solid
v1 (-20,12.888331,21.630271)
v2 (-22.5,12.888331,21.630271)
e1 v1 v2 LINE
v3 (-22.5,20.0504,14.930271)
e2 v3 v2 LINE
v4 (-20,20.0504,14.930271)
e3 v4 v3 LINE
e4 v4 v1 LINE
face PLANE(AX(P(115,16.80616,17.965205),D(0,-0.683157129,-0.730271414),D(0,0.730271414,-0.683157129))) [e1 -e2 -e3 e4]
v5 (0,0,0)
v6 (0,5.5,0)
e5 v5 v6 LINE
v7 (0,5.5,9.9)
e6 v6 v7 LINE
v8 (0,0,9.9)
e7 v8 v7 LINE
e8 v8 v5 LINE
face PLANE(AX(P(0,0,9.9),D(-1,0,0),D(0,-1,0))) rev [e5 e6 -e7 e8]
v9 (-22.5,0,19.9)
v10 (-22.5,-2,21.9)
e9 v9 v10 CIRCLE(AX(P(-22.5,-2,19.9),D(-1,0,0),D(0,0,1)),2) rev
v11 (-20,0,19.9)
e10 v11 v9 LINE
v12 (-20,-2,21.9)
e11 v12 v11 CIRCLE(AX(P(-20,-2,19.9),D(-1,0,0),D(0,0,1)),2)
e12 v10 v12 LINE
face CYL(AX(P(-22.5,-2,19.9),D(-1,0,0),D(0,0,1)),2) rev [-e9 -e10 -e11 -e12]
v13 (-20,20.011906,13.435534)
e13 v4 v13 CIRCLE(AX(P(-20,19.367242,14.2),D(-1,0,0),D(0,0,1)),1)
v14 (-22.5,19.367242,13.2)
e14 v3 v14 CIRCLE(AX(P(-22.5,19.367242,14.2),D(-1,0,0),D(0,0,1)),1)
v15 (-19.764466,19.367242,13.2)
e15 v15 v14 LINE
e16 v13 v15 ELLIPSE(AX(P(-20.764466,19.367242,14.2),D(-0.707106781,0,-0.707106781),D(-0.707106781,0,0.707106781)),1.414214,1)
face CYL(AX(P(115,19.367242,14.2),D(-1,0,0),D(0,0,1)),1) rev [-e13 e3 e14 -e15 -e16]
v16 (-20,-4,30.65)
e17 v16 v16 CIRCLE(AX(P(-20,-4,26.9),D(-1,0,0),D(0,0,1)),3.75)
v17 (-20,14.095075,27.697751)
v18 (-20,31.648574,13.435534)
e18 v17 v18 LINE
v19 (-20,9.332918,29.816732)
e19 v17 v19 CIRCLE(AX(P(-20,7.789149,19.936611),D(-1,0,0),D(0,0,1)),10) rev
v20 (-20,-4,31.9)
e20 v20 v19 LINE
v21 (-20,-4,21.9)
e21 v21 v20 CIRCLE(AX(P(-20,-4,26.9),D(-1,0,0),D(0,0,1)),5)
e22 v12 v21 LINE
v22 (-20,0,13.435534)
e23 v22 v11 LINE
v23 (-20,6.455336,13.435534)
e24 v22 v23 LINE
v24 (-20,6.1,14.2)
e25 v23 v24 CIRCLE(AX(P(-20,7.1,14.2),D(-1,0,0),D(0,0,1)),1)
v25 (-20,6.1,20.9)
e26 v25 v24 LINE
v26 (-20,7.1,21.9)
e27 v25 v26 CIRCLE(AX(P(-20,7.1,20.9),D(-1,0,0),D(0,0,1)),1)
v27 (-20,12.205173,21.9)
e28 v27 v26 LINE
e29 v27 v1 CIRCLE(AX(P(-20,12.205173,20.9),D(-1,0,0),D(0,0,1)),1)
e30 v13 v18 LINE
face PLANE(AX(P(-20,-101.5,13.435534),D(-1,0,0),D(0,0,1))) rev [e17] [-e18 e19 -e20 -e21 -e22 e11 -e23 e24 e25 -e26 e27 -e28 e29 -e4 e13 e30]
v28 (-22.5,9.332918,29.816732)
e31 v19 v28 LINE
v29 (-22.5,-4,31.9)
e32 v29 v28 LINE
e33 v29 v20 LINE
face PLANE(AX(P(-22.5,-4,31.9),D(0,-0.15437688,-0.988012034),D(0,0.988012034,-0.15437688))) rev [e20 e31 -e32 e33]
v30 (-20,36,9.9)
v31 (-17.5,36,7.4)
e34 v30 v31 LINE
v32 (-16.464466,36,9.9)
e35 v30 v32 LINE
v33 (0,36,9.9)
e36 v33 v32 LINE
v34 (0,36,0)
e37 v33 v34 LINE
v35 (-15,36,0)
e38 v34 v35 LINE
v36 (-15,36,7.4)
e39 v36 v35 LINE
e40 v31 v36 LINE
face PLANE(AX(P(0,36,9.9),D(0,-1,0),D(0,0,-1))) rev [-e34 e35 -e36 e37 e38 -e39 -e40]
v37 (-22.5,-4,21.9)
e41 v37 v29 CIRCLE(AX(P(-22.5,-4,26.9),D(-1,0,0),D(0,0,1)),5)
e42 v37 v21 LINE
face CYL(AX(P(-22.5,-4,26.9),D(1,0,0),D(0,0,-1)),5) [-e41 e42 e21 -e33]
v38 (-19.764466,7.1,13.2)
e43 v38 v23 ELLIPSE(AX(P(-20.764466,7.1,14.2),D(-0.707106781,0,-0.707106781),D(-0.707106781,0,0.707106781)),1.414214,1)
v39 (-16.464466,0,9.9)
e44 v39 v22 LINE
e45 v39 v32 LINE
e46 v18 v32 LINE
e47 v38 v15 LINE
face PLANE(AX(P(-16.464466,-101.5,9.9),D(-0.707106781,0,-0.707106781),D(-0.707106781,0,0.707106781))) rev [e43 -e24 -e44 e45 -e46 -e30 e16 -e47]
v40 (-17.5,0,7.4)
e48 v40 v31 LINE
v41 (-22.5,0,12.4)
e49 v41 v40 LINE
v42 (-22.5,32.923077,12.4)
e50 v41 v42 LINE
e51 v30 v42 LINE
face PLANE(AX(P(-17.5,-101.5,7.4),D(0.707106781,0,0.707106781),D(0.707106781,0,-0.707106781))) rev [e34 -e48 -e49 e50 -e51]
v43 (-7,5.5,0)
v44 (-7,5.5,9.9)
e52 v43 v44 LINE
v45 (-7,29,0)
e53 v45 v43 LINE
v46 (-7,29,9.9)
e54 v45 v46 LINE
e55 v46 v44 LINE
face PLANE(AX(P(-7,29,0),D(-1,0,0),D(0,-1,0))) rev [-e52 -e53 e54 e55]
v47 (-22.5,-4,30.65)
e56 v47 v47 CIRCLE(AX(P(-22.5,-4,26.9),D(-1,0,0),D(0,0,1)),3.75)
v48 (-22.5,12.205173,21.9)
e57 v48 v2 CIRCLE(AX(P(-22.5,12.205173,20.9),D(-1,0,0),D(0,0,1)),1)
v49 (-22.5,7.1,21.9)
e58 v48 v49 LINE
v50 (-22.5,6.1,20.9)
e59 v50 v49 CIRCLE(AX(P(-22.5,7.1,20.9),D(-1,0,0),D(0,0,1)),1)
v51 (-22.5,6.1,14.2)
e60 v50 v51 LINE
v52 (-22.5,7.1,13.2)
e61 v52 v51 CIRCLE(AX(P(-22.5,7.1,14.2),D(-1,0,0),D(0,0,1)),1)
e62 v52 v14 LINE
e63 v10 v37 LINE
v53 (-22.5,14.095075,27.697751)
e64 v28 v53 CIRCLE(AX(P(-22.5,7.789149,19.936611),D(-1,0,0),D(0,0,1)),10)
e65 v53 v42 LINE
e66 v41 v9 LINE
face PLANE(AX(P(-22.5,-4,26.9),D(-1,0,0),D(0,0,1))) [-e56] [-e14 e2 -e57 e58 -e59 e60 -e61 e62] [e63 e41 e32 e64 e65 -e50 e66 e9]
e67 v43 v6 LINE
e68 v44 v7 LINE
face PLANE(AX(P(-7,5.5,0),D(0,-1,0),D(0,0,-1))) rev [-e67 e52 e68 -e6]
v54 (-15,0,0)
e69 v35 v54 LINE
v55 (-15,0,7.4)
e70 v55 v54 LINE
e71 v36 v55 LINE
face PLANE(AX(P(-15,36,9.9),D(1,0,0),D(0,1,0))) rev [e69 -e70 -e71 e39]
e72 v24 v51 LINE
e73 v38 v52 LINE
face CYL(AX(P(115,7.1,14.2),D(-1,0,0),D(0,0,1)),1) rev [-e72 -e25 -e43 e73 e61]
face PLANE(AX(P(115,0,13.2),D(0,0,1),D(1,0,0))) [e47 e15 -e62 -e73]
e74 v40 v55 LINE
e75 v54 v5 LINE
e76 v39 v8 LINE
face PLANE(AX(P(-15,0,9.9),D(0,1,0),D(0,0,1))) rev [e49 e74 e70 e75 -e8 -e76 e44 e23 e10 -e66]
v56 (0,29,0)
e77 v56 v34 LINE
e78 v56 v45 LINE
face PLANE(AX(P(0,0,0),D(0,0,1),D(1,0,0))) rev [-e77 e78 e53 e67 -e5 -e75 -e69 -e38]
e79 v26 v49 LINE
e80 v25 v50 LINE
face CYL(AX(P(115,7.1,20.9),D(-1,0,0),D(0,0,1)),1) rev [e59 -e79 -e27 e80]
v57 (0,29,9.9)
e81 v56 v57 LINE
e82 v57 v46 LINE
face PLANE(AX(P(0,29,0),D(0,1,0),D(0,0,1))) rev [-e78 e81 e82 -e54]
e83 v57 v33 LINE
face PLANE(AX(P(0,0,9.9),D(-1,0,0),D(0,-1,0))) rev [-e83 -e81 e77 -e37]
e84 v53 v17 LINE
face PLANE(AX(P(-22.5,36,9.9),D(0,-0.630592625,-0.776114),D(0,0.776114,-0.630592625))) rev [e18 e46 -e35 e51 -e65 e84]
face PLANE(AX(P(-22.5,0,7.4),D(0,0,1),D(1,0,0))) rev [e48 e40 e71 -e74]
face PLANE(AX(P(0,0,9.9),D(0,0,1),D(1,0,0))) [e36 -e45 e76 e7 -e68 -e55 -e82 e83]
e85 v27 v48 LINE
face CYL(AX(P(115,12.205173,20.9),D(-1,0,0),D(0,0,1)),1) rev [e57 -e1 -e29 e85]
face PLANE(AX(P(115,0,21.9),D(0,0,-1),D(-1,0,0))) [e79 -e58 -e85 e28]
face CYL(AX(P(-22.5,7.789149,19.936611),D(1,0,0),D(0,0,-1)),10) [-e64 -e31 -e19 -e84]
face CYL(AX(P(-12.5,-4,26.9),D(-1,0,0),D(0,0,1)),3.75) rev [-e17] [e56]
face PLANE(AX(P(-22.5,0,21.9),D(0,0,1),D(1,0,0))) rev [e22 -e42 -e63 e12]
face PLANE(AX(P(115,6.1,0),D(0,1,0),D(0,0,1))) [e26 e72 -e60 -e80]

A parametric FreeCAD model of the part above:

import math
import FreeCAD as App
import Part
import Sketcher
Q = App.Units.Quantity


def edges_at(feature, points):
    """Names of the edges that pass closest to the given points."""
    edges = feature.Shape.Edges
    near = lambda p: min(range(len(edges)), key=lambda i: edges[i].distToShape(Part.Vertex(*p))[0])
    return sorted({f"Edge{near(p) + 1}" for p in points})


def add_polygon(sketch, points):
    """Adds a closed chain of lines whose ends are joined by coincident constraints."""
    first, n = sketch.GeometryCount, len(points)
    for a, b in zip(points, points[1:] + points[:1]):
        sketch.addGeometry(Part.LineSegment(App.Vector(*a, 0), App.Vector(*b, 0)), False)
    for i in range(n):
        sketch.addConstraint(Sketcher.Constraint("Coincident", first + i, 2, first + (i + 1) % n, 1))

doc = App.newDocument("Part")
body = doc.addObject("PartDesign::Body", "Body")

# Sketch on XY plane
sketch1 = body.newObject("Sketcher::SketchObject", "Sketch")
sketch1.AttachmentSupport = (doc.getObject("XY_Plane"), [""])
sketch1.MapMode = "FlatFace"
add_polygon(sketch1, [(-15, 36), (-15, 0), (0, 0), (0, 36)])  # lines 0-3
sketch1.addConstraint([
    Sketcher.Constraint("Vertical", 0),
    Sketcher.Constraint("Horizontal", 1),
    Sketcher.Constraint("Vertical", 2),
    Sketcher.Constraint("Horizontal", 3),
    Sketcher.Constraint("Coincident", 1, 2, -1, 1),
    Sketcher.Constraint("DistanceX", 1, 1, 1, 2, Q("15 mm")),
    Sketcher.Constraint("DistanceY", 0, 2, 0, 1, Q("36 mm")),
])
pad1 = body.newObject("PartDesign::Pad", "Pad")
pad1.Profile = sketch1
pad1.Length = 9.9

# Sketch on XY plane
sketch2 = body.newObject("Sketcher::SketchObject", "Sketch001")
sketch2.AttachmentSupport = (doc.getObject("XY_Plane"), [""])
sketch2.MapMode = "FlatFace"
sketch2.AttachmentOffset = App.Placement(App.Vector(0, 0, 9.9), App.Rotation())
add_polygon(sketch2, [(-7, 29), (-7, 6), (0, 6), (0, 29)])  # lines 0-3
sketch2.addConstraint([
    Sketcher.Constraint("Vertical", 0),
    Sketcher.Constraint("Horizontal", 1),
    Sketcher.Constraint("Vertical", 2),
    Sketcher.Constraint("Horizontal", 3),
    Sketcher.Constraint("PointOnObject", 1, 2, -2),
    Sketcher.Constraint("DistanceX", 1, 1, 1, 2, Q("7 mm")),
    Sketcher.Constraint("DistanceY", 0, 2, 0, 1, Q("23.5 mm")),
    Sketcher.Constraint("DistanceY", -1, 1, 2, 2, Q("29 mm")),
])
pocket1 = body.newObject("PartDesign::Pocket", "Pocket")
pocket1.Profile = sketch2
pocket1.Length = 9.9

# Sketch on YZ plane
sketch3 = body.newObject("Sketcher::SketchObject", "Sketch002")
sketch3.AttachmentSupport = (doc.getObject("YZ_Plane"), [""])
sketch3.MapMode = "FlatFace"
sketch3.AttachmentOffset = App.Placement(App.Vector(0, 0, -15), App.Rotation())
sketch3.addGeometry([
    Part.LineSegment(App.Vector(36, 9.9, 0), App.Vector(36, 7.4, 0)),  # 0
    Part.LineSegment(App.Vector(36, 7.4, 0), App.Vector(0, 7.4, 0)),  # 1
    Part.LineSegment(App.Vector(0, 7.4, 0), App.Vector(0, 21.9, 0)),  # 2
    Part.LineSegment(App.Vector(0, 21.9, 0), App.Vector(-4, 21.9, 0)),  # 3
    Part.ArcOfCircle(Part.Circle(App.Vector(-4, 26.9, 0), App.Vector(0, 0, 1), 5), math.radians(90), math.radians(270)),  # 4
    Part.LineSegment(App.Vector(-4, 31.9, 0), App.Vector(12, 29.4, 0)),  # 5
    Part.LineSegment(App.Vector(12, 29.4, 0), App.Vector(32.9, 12.4, 0)),  # 6
    Part.LineSegment(App.Vector(32.9, 12.4, 0), App.Vector(36, 9.9, 0)),  # 7
    Part.Circle(App.Vector(-4, 26.9, 0), App.Vector(0, 0, 1), 2.5),  # 8
], False)
sketch3.addConstraint([
    Sketcher.Constraint("Coincident", 0, 2, 1, 1),
    Sketcher.Constraint("Coincident", 1, 2, 2, 1),
    Sketcher.Constraint("Coincident", 2, 2, 3, 1),
    Sketcher.Constraint("Tangent", 3, 2, 4, 2),
    Sketcher.Constraint("Coincident", 4, 1, 5, 1),
    Sketcher.Constraint("Coincident", 5, 2, 6, 1),
    Sketcher.Constraint("Coincident", 6, 2, 7, 1),
    Sketcher.Constraint("Coincident", 7, 2, 0, 1),
    Sketcher.Constraint("Vertical", 0),
    Sketcher.Constraint("Horizontal", 1),
    Sketcher.Constraint("Vertical", 2),
    Sketcher.Constraint("Horizontal", 3),
    Sketcher.Constraint("Coincident", 8, 3, 4, 3),
    Sketcher.Constraint("PointOnObject", 1, 2, -2),
    Sketcher.Constraint("Parallel", 6, 7),
    Sketcher.Constraint("Vertical", 3, 2, 4, 1),
    Sketcher.Constraint("Diameter", 8, Q("5 mm")),
    Sketcher.Constraint("Radius", 4, Q("5 mm")),
    Sketcher.Constraint("DistanceX", 1, 2, 1, 1, Q("36 mm")),
    Sketcher.Constraint("DistanceX", 3, 2, 3, 1, Q("4 mm")),
    Sketcher.Constraint("DistanceY", 0, 2, 0, 1, Q("2.5 mm")),
    Sketcher.Constraint("DistanceY", 2, 1, 2, 2, Q("14.5 mm")),
    Sketcher.Constraint("DistanceX", -1, 1, 5, 2, Q("12 mm")),
    Sketcher.Constraint("DistanceY", 0, 2, 6, 2, Q("5 mm")),
    Sketcher.Constraint("DistanceY", 6, 2, 5, 2, Q("17 mm")),
    Sketcher.Constraint("DistanceY", -1, 1, 4, 3, Q("26.9 mm")),
])
pad2 = body.newObject("PartDesign::Pad", "Pad001")
pad2.Profile = sketch3
pad2.Length = 7.5
pad2.Reversed = True

# Sketch on XZ plane
sketch4 = body.newObject("Sketcher::SketchObject", "Sketch003")
sketch4.AttachmentSupport = (doc.getObject("XZ_Plane"), [""])
sketch4.MapMode = "FlatFace"
sketch4.AttachmentOffset = App.Placement(App.Vector(0, 0, -36), App.Rotation())
add_polygon(sketch4, [(-25, 15), (-18, 7), (-27, 7)])  # lines 0-2
add_polygon(sketch4, [(-16, 10), (-20, 13), (-20, 35), (-3, 35), (-4, 10)])  # lines 3-7
sketch4.addConstraint([
    Sketcher.Constraint("Horizontal", 1),
    Sketcher.Constraint("Vertical", 4),
    Sketcher.Constraint("Horizontal", 5),
    Sketcher.Constraint("Horizontal", 7),
    Sketcher.Constraint("Parallel", 0, 3),
    Sketcher.Constraint("Angle", 0, Q("-45 deg")),
    Sketcher.Constraint("Distance", 3, Q("5 mm")),
    Sketcher.Constraint("DistanceX", 3, 2, -1, 1, Q("20 mm")),
    Sketcher.Constraint("DistanceX", 0, 2, -1, 1, Q("17.5 mm")),
    Sketcher.Constraint("DistanceY", -1, 1, 0, 2, Q("7.4 mm")),
    Sketcher.Constraint("DistanceY", -1, 1, 6, 2, Q("9.9 mm")),
    Sketcher.Constraint("DistanceX", 5, 1, 5, 2, Q("17.14341 mm")),
    Sketcher.Constraint("DistanceX", 1, 2, 1, 1, Q("9.025987 mm")),
    Sketcher.Constraint("DistanceX", 7, 2, 7, 1, Q("12.080117 mm")),
    Sketcher.Constraint("DistanceY", 4, 1, 4, 2, Q("21.535424 mm")),
    Sketcher.Constraint("DistanceX", 1, 2, 2, 2, Q("1.52489 mm")),
])
pocket2 = body.newObject("PartDesign::Pocket", "Pocket001")
pocket2.Profile = sketch4
pocket2.Length = 137.5
pocket2.Reversed = True

# Sketch on YZ plane
sketch5 = body.newObject("Sketcher::SketchObject", "Sketch004")
sketch5.AttachmentSupport = (doc.getObject("YZ_Plane"), [""])
sketch5.MapMode = "FlatFace"
sketch5.AttachmentOffset = App.Placement(App.Vector(0, 0, -22.5), App.Rotation())
sketch5.addGeometry([
    Part.LineSegment(App.Vector(12.9, 21.6, 0), App.Vector(20.1, 14.9, 0)),  # 0
    Part.ArcOfCircle(Part.Circle(App.Vector(19.4, 14.2, 0), App.Vector(0, 0, 1), 1), math.radians(-90), math.radians(47)),  # 1
    Part.LineSegment(App.Vector(19.4, 13.2, 0), App.Vector(7.1, 13.2, 0)),  # 2
    Part.ArcOfCircle(Part.Circle(App.Vector(7.1, 14.2, 0), App.Vector(0, 0, 1), 1), math.radians(-180), math.radians(-90)),  # 3
    Part.LineSegment(App.Vector(6.1, 14.2, 0), App.Vector(6.1, 20.9, 0)),  # 4
    Part.ArcOfCircle(Part.Circle(App.Vector(7.1, 20.9, 0), App.Vector(0, 0, 1), 1), math.radians(90), math.radians(180)),  # 5
    Part.LineSegment(App.Vector(7.1, 21.9, 0), App.Vector(12.2, 21.9, 0)),  # 6
    Part.ArcOfCircle(Part.Circle(App.Vector(12.2, 20.9, 0), App.Vector(0, 0, 1), 1), math.radians(47), math.radians(90)),  # 7
], False)
sketch5.addConstraint([
    Sketcher.Constraint("Tangent", 0, 2, 1, 2),
    Sketcher.Constraint("Tangent", 1, 1, 2, 1),
    Sketcher.Constraint("Tangent", 2, 2, 3, 2),
    Sketcher.Constraint("Tangent", 3, 1, 4, 1),
    Sketcher.Constraint("Tangent", 4, 2, 5, 2),
    Sketcher.Constraint("Tangent", 5, 1, 6, 1),
    Sketcher.Constraint("Tangent", 6, 2, 7, 2),
    Sketcher.Constraint("Tangent", 7, 1, 0, 1),
    Sketcher.Constraint("Horizontal", 2),
    Sketcher.Constraint("Vertical", 4),
    Sketcher.Constraint("Horizontal", 6),
    Sketcher.Constraint("Equal", 1, 3),
    Sketcher.Constraint("Equal", 3, 5),
    Sketcher.Constraint("Equal", 5, 7),
    Sketcher.Constraint("Radius", 1, Q("1 mm")),
    Sketcher.Constraint("DistanceY", 4, 1, 4, 2, Q("6.7 mm")),
    Sketcher.Constraint("DistanceY", -1, 1, 1, 3, Q("14.2 mm")),
    Sketcher.Constraint("DistanceX", -1, 1, 3, 3, Q("7.1 mm")),
    Sketcher.Constraint("DistanceX", -1, 1, 0, 2, Q("20.0504 mm")),
    Sketcher.Constraint("DistanceX", 2, 2, 2, 1, Q("12.267242 mm")),
])
pocket3 = body.newObject("PartDesign::Pocket", "Pocket002")
pocket3.Profile = sketch5
pocket3.Length = 137.5
pocket3.Reversed = True
doc.recompute()

fillet = body.newObject("PartDesign::Fillet", "Fillet")
fillet.Base = (pocket3, edges_at(pocket3, [(-21.25, 12, 29.4)]))
fillet.Radius = 10
doc.recompute()

fillet2 = body.newObject("PartDesign::Fillet", "Fillet001")
fillet2.Base = (fillet, edges_at(fillet, [(-21.25, 0, 21.9)]))
fillet2.Radius = 2

# Sketch on YZ plane
sketch6 = body.newObject("Sketcher::SketchObject", "Sketch005")
sketch6.AttachmentSupport = (doc.getObject("YZ_Plane"), [""])
sketch6.MapMode = "FlatFace"
sketch6.AttachmentOffset = App.Placement(App.Vector(0, 0, -22.5), App.Rotation())
sketch6.addGeometry(Part.Circle(App.Vector(-4, 26.9, 0), App.Vector(0, 0, 1), 3.8), False)
sketch6.addConstraint([
    Sketcher.Constraint("Diameter", 0, Q("7.5 mm")),
    Sketcher.Constraint("DistanceX", 0, 3, -1, 1, Q("4 mm")),
    Sketcher.Constraint("DistanceY", -1, 1, 0, 3, Q("26.9 mm")),
])
pocket4 = body.newObject("PartDesign::Pocket", "Pocket003")
pocket4.Profile = sketch6
pocket4.Length = 10
pocket4.Reversed = True

doc.recompute()
